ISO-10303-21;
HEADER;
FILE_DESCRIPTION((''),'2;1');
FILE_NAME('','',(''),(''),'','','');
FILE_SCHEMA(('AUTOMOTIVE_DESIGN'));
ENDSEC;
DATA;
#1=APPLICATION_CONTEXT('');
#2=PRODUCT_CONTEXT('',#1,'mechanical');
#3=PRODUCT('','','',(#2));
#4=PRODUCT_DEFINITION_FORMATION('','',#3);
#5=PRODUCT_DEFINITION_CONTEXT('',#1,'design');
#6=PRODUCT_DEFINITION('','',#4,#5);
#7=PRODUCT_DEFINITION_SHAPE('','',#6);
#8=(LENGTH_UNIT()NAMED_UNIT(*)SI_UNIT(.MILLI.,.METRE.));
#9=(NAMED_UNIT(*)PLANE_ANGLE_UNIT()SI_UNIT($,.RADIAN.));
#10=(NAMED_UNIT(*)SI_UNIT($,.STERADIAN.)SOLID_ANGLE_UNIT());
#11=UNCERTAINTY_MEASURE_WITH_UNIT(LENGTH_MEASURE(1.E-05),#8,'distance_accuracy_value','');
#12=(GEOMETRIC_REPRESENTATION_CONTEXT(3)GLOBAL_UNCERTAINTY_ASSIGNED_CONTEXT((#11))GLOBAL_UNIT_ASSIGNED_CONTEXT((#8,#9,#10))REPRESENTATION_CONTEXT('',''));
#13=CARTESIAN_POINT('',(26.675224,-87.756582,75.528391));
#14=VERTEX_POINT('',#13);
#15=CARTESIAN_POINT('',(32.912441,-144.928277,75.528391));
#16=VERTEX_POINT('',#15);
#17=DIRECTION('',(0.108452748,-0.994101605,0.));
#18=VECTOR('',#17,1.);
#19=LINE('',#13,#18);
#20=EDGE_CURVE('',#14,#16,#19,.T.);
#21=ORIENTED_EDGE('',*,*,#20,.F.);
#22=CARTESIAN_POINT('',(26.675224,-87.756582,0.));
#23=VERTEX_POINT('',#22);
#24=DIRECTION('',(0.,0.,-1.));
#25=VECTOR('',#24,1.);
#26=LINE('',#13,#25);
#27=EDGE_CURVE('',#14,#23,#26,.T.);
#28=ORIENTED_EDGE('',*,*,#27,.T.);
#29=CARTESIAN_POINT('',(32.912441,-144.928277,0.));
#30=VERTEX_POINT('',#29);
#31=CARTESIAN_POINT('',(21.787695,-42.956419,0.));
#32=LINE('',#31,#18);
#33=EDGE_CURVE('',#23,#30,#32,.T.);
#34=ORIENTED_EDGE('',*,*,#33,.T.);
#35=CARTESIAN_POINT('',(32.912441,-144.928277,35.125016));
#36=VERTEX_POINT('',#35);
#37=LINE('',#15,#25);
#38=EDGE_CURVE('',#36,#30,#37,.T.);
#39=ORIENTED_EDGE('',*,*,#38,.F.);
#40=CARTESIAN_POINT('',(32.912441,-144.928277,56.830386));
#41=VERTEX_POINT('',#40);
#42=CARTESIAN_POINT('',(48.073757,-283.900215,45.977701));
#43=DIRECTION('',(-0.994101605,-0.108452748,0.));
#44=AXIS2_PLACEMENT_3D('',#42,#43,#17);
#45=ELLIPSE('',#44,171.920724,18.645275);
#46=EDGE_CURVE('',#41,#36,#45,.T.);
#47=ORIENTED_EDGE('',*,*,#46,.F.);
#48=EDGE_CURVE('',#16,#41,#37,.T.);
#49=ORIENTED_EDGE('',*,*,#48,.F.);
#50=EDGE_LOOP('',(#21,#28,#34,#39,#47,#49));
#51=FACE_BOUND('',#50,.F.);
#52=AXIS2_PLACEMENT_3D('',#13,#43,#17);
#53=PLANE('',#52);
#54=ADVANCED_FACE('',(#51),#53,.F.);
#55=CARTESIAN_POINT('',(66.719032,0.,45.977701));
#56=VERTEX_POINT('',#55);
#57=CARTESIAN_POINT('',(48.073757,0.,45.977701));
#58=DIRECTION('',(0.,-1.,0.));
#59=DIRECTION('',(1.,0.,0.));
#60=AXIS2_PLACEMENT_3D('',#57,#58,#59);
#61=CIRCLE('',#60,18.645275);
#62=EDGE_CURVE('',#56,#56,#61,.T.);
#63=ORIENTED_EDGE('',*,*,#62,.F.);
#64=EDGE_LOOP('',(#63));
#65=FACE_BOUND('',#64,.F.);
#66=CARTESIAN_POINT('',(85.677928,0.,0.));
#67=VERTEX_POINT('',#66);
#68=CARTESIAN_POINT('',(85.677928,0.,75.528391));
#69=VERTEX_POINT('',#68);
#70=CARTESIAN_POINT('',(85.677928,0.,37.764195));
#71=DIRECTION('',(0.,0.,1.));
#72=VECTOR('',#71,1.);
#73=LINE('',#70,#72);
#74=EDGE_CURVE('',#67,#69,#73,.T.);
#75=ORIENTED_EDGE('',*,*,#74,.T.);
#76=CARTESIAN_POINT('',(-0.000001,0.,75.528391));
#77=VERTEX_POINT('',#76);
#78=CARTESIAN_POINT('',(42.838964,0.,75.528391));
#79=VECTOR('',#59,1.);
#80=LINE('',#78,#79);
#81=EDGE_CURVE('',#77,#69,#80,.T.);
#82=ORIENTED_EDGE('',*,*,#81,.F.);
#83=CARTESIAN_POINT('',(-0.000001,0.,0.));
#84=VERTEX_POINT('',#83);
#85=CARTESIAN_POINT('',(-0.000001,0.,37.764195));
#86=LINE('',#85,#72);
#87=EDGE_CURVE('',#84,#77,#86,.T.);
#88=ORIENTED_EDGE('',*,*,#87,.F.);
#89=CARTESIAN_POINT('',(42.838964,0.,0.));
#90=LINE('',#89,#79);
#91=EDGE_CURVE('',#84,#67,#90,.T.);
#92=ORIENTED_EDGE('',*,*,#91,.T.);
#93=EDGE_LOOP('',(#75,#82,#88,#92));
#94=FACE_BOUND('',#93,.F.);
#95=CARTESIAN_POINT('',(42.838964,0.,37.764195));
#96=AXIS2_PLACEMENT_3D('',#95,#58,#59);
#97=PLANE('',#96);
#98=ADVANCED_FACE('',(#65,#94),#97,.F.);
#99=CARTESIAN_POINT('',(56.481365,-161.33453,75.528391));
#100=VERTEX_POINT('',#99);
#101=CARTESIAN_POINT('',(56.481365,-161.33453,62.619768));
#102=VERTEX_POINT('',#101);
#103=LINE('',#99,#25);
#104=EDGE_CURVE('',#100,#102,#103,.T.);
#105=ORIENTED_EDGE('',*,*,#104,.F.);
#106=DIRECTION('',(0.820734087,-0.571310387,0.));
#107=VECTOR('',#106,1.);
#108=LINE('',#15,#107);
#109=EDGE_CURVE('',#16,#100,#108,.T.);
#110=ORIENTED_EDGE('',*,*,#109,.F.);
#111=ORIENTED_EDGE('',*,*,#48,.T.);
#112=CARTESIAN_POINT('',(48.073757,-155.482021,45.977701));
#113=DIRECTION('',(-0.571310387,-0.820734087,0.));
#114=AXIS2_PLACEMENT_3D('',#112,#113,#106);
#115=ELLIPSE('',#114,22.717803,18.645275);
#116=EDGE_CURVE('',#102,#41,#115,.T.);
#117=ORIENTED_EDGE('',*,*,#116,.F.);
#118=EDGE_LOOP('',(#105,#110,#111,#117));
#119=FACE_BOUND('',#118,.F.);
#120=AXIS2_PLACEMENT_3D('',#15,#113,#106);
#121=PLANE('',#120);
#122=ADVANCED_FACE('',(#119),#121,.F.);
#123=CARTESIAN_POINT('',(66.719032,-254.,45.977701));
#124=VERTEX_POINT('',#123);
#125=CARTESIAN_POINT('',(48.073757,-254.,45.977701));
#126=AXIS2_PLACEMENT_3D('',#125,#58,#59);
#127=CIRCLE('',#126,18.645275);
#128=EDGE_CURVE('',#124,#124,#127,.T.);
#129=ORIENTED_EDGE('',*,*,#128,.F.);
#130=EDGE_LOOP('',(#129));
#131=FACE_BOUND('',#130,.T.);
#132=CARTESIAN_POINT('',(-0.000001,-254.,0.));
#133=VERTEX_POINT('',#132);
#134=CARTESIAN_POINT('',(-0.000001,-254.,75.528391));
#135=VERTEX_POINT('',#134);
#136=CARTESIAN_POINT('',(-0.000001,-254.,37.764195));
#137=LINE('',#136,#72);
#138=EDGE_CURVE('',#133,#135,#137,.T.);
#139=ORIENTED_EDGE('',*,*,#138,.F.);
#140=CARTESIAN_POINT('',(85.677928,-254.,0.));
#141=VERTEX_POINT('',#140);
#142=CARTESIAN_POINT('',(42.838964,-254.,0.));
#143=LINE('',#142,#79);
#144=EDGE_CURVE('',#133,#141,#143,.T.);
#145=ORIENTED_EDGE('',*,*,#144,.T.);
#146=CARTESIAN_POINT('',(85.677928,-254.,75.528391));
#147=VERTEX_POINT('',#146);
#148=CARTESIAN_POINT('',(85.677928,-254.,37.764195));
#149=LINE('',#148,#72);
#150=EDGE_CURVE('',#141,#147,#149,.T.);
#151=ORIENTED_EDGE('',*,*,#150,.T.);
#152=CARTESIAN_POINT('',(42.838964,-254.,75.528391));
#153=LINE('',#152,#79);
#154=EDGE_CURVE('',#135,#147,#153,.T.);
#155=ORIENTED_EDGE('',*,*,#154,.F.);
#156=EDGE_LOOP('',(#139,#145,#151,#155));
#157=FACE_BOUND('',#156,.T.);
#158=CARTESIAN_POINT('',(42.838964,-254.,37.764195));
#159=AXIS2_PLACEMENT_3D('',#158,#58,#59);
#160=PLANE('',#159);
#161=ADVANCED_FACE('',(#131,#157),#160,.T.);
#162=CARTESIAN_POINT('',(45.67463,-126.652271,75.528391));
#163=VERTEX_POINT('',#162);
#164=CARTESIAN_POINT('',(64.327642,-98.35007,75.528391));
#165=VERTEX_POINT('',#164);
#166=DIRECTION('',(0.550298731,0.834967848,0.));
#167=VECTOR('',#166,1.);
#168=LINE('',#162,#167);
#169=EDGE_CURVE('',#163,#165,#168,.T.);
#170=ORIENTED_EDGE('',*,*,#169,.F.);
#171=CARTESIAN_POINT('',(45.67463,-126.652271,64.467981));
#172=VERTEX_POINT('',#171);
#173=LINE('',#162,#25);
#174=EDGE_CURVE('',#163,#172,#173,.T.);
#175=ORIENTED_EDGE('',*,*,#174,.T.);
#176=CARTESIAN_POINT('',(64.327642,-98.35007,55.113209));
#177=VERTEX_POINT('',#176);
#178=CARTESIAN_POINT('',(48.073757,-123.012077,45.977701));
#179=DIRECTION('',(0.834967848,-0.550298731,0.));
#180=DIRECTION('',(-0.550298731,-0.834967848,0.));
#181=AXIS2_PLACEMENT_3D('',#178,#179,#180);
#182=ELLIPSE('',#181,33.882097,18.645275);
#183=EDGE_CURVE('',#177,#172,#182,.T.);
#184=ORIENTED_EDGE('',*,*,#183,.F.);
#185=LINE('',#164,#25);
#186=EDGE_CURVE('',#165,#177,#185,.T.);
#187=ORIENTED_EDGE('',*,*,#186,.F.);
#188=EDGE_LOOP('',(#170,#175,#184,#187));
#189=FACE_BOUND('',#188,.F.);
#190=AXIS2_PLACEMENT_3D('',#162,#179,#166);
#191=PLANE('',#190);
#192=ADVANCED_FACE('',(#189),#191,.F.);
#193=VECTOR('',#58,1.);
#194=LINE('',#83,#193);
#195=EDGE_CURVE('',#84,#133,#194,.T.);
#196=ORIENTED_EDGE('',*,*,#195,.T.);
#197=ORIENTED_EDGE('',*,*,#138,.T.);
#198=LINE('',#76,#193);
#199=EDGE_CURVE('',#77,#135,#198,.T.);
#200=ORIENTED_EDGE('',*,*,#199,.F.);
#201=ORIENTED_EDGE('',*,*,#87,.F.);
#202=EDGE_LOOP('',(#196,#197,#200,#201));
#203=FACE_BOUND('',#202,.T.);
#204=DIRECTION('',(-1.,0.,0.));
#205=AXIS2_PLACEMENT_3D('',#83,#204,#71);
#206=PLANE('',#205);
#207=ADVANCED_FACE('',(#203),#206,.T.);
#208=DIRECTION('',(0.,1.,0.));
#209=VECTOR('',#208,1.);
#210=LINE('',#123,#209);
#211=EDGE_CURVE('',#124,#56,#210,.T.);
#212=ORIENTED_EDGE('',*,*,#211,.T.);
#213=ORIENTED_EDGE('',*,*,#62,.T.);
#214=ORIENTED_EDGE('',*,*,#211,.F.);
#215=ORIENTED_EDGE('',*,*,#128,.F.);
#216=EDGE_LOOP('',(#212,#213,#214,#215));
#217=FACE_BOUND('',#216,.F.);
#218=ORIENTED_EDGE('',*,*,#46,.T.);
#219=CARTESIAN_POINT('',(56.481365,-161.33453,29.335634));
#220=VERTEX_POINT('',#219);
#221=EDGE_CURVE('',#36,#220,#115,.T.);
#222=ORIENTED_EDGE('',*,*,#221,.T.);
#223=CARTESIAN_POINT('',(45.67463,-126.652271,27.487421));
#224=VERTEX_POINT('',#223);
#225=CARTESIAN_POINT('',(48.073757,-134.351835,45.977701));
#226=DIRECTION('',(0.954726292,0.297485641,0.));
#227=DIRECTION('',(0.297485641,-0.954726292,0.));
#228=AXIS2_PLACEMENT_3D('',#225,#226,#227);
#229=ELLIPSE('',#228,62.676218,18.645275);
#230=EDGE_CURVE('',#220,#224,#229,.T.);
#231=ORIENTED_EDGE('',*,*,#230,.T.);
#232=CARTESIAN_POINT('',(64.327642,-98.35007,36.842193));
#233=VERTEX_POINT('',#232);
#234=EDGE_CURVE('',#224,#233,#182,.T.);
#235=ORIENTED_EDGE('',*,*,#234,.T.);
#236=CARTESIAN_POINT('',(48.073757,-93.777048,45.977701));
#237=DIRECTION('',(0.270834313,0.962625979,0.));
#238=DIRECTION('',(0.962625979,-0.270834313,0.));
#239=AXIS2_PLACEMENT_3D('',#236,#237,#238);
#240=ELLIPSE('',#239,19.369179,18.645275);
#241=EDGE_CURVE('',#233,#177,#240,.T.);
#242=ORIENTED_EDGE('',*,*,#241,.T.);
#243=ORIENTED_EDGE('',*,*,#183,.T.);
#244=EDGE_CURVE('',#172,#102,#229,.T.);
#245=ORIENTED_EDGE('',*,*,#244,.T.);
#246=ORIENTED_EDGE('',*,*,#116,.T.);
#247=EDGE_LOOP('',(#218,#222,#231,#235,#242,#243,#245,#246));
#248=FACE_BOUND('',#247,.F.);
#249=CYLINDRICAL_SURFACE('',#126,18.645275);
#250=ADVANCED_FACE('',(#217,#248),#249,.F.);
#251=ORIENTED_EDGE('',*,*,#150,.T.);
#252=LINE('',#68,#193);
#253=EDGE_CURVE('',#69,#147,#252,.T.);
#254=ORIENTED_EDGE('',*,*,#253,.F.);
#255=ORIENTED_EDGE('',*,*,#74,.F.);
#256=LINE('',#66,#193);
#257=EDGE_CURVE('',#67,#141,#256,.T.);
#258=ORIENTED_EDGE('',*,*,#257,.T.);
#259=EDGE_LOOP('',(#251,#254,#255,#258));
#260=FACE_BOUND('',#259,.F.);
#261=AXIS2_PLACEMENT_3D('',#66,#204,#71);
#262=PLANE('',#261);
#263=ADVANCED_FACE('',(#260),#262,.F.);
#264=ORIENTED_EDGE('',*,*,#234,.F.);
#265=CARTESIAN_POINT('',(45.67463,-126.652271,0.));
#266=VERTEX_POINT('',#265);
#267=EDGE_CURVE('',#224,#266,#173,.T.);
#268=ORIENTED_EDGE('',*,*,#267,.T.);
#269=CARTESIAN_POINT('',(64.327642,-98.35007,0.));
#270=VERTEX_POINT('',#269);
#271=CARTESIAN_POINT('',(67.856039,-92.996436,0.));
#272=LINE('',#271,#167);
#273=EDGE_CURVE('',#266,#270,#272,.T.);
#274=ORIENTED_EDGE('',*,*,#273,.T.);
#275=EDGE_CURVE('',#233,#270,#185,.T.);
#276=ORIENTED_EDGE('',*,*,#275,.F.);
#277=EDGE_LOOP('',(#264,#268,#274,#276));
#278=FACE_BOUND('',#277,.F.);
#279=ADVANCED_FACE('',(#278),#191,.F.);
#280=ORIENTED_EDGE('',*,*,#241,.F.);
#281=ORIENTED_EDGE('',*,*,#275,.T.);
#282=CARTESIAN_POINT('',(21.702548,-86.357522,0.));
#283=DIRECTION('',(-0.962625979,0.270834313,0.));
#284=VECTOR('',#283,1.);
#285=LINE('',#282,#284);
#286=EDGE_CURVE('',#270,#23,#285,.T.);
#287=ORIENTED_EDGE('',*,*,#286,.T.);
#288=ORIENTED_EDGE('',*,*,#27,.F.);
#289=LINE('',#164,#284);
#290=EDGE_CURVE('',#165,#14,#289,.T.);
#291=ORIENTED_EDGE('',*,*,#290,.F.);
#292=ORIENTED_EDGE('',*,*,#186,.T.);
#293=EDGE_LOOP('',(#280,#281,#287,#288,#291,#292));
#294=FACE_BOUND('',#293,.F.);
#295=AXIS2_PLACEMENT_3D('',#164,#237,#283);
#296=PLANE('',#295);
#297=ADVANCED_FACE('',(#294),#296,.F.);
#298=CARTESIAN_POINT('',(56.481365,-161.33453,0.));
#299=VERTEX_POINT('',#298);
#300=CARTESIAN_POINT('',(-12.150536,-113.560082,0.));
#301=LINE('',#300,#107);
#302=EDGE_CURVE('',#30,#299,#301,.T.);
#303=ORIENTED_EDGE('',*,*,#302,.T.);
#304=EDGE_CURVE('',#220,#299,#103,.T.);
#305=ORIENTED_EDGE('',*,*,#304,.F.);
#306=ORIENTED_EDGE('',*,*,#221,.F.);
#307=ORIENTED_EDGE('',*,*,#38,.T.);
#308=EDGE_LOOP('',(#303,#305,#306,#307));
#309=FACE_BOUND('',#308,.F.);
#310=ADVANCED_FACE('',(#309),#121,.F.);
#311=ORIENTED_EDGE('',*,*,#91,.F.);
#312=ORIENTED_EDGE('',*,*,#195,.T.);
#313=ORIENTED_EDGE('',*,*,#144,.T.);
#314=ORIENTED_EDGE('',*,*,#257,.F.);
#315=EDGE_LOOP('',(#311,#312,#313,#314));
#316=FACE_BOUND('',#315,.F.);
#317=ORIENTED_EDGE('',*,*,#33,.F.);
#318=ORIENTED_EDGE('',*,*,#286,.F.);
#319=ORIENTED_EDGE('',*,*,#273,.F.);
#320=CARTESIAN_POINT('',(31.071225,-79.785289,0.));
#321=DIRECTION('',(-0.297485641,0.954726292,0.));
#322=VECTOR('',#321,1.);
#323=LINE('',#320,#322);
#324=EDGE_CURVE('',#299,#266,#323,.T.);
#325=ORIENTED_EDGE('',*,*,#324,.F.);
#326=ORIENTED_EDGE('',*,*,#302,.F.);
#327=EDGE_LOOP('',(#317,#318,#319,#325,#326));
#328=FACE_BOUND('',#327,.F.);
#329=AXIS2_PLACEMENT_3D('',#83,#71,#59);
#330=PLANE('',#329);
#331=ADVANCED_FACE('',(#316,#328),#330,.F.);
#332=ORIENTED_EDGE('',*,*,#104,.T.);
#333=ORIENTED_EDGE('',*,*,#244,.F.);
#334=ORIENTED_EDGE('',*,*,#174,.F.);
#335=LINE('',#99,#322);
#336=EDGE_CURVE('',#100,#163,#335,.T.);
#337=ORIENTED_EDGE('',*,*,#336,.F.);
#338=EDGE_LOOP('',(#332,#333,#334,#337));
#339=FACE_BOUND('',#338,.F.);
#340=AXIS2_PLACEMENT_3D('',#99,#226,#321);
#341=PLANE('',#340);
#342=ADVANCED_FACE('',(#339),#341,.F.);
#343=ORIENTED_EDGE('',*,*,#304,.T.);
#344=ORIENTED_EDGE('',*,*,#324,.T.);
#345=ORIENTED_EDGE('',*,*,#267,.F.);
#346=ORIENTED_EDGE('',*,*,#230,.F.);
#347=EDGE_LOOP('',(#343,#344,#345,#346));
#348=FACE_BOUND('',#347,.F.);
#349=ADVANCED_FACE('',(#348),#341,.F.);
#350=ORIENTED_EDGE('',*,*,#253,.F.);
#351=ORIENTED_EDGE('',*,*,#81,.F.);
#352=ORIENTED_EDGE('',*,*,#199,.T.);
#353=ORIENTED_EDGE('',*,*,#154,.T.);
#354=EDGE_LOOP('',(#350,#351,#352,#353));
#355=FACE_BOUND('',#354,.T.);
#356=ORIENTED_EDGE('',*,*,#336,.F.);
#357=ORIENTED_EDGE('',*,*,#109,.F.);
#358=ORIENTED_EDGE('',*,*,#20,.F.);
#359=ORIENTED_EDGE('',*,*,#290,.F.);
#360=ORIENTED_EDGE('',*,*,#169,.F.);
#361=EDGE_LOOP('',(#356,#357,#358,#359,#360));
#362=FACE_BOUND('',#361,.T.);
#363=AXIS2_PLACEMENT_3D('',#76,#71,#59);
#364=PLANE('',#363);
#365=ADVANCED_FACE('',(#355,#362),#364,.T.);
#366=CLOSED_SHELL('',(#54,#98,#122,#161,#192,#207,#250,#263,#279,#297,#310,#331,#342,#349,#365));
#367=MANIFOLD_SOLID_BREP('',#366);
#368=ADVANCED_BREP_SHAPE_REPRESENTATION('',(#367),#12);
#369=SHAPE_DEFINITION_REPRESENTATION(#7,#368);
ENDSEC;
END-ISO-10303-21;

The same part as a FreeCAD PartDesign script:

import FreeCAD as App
import Part
import Sketcher

V = App.Vector
Q = App.Units.Quantity

doc = App.newDocument("Part")
params = doc.addObject("Spreadsheet::Sheet", "Params")
for row, (alias, value) in enumerate([
    ("pad1_length", "10 in"),
    ("pocket2_length", "5 in"),
], start=1):
    params.set(f"A{row}", alias)
    params.set(f"B{row}", "=" + value)
    params.setAlias(f"B{row}", alias)

body = doc.addObject("PartDesign::Body", "Body")

# Sketch on XZ plane
sketch1 = body.newObject("Sketcher::SketchObject", "Sketch")
sketch1.AttachmentSupport = (doc.getObject("XZ_Plane"), [""])
sketch1.MapMode = "FlatFace"
sketch1.addGeometry([
    Part.LineSegment(V(0, 75.528391, 0), V(0, 0, 0)),
    Part.LineSegment(V(0, 0, 0), V(85.677928, 0, 0)),
    Part.LineSegment(V(85.677928, 0, 0), V(85.677928, 75.528391, 0)),
    Part.LineSegment(V(85.677928, 75.528391, 0), V(0, 75.528391, 0)),
], False)
sketch1.addConstraint([
    Sketcher.Constraint("Coincident", 0, 2, 1, 1),
    Sketcher.Constraint("Coincident", 1, 2, 2, 1),
    Sketcher.Constraint("Coincident", 2, 2, 3, 1),
    Sketcher.Constraint("Coincident", 3, 2, 0, 1),
    Sketcher.Constraint("Vertical", 0),
    Sketcher.Constraint("Horizontal", 1),
    Sketcher.Constraint("Vertical", 2),
    Sketcher.Constraint("Horizontal", 3),
    Sketcher.Constraint("Coincident", 0, 2, -1, 1),
    Sketcher.Constraint("DistanceX", 1, 1, 1, 2, Q("85.677929 mm")),
    Sketcher.Constraint("DistanceY", 0, 2, 0, 1, Q("75.528391 mm")),
])
pad1 = body.newObject("PartDesign::Pad", "Pad")
pad1.Profile = sketch1
pad1.setExpression("Length", "Params.pad1_length")

# Sketch on XZ plane
sketch2 = body.newObject("Sketcher::SketchObject", "Sketch001")
sketch2.AttachmentSupport = (doc.getObject("XZ_Plane"), [""])
sketch2.MapMode = "FlatFace"
sketch2.AttachmentOffset = App.Placement(V(0, 0, 10 * 25.4), App.Rotation())
sketch2.addGeometry(Part.Circle(V(48.073757, 45.977701, 0), V(0, 0, 1), 18.645275), False)
sketch2.addConstraint([
    Sketcher.Constraint("Diameter", 0, Q("37.29055 mm")),
    Sketcher.Constraint("DistanceY", -1, 1, 0, 3, Q("45.977701 mm")),
    Sketcher.Constraint("DistanceX", -1, 1, 0, 3, Q("48.073757 mm")),
])
pocket1 = body.newObject("PartDesign::Pocket", "Pocket")
pocket1.Profile = sketch2
pocket1.Type = "ThroughAll"

# Sketch on XY plane
sketch3 = body.newObject("Sketcher::SketchObject", "Sketch002")
sketch3.AttachmentSupport = (doc.getObject("XY_Plane"), [""])
sketch3.MapMode = "FlatFace"
sketch3.AttachmentOffset = App.Placement(V(0, 0, 75.528391), App.Rotation())
sketch3.addGeometry([
    Part.LineSegment(V(64.327642, -98.35007, 0), V(26.675224, -87.756582, 0)),  # 0
    Part.LineSegment(V(26.675224, -87.756582, 0), V(32.912441, -144.928277, 0)),  # 1
    Part.LineSegment(V(32.912441, -144.928277, 0), V(56.481365, -161.33453, 0)),  # 2
    Part.LineSegment(V(56.481365, -161.33453, 0), V(45.67463, -126.652271, 0)),  # 3
    Part.LineSegment(V(45.67463, -126.652271, 0), V(64.327642, -98.35007, 0)),  # 4
], False)
sketch3.addConstraint([
    Sketcher.Constraint("Coincident", 0, 2, 1, 1),
    Sketcher.Constraint("Coincident", 1, 2, 2, 1),
    Sketcher.Constraint("Coincident", 2, 2, 3, 1),
    Sketcher.Constraint("Coincident", 3, 2, 4, 1),
    Sketcher.Constraint("Coincident", 4, 2, 0, 1),
    Sketcher.Constraint("DistanceY", 3, 2, 4, 2, Q("28.302201 mm")),
    Sketcher.Constraint("DistanceX", 1, 2, 4, 2, Q("31.415201 mm")),
    Sketcher.Constraint("DistanceY", 0, 2, -1, 1, Q("87.756582 mm")),
    Sketcher.Constraint("DistanceX", -1, 1, 1, 2, Q("32.912441 mm")),
    Sketcher.Constraint("DistanceY", 2, 2, -1, 1, Q("161.33453 mm")),
    Sketcher.Constraint("DistanceX", -1, 1, 3, 2, Q("45.67463 mm")),
    Sketcher.Constraint("DistanceY", 3, 2, -1, 1, Q("126.652271 mm")),
    Sketcher.Constraint("DistanceX", 0, 2, 2, 2, Q("29.806141 mm")),
    Sketcher.Constraint("Distance", 0, Q("39.114276 mm")),
    Sketcher.Constraint("Distance", 1, Q("57.510917 mm")),
])
pocket2 = body.newObject("PartDesign::Pocket", "Pocket001")
pocket2.Profile = sketch3
pocket2.setExpression("Length", "Params.pocket2_length")

doc.recompute()
